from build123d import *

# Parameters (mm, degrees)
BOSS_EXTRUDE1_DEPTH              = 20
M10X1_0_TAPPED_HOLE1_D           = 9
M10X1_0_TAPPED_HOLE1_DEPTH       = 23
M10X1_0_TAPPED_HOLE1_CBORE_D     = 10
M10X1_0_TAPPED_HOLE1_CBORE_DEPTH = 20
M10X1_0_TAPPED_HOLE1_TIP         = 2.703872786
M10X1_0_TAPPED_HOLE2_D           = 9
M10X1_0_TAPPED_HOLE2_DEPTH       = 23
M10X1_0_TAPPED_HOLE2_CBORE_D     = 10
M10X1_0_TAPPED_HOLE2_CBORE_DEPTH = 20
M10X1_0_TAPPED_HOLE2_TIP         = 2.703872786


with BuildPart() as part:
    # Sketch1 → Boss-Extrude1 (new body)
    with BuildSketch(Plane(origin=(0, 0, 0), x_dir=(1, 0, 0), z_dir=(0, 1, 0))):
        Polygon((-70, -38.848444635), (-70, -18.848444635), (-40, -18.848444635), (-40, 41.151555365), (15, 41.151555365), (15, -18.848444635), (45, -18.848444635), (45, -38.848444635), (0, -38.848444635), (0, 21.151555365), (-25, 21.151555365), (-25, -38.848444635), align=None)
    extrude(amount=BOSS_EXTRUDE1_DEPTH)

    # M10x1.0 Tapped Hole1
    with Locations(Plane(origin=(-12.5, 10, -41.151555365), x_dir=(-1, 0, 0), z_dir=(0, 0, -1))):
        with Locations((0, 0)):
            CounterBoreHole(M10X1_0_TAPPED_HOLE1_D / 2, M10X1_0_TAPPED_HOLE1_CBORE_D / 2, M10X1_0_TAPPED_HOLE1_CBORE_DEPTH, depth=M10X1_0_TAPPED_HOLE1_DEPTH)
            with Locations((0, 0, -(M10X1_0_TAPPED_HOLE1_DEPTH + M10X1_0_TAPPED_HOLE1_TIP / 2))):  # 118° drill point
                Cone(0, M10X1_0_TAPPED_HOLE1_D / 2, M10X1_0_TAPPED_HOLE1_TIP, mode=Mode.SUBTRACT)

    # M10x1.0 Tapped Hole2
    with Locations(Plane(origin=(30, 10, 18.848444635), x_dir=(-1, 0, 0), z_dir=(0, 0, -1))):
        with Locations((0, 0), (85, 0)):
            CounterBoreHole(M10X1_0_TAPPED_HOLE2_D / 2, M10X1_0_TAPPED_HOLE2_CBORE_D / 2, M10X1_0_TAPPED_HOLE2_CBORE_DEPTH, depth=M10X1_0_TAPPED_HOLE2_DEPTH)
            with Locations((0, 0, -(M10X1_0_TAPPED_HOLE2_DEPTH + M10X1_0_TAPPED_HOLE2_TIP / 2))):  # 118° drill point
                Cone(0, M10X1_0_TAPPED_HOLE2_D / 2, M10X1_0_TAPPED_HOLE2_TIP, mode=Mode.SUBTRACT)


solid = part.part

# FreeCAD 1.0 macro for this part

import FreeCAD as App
import Part
import Sketcher
Q = App.Units.Quantity

doc = App.newDocument("Part")
params = doc.addObject("Spreadsheet::Sheet", "Params")
for row, (alias, value) in enumerate([
    ("sketch1_width", "45 mm"),
    ("sketch1_width2", "25 mm"),
    ("sketch1_width3", "30 mm"),
    ("sketch1_height", "20 mm"),
    ("sketch1_height2", "60 mm"),
    ("pad1_length", "20 mm"),
    ("sketch2_diameter", "9 mm"),
    ("hole_diameter", "9 mm"),
    ("hole_depth", "23 mm"),
    ("hole_cbore_diameter", "10 mm"),
    ("hole_cbore_depth", "20 mm"),
    ("sketch3_diameter", "9 mm"),
    ("hole2_diameter", "9 mm"),
    ("hole2_depth", "23 mm"),
    ("hole2_cbore_diameter", "10 mm"),
    ("hole2_cbore_depth", "20 mm"),
], start=1):
    params.set(f"A{row}", alias)
    params.set(f"B{row}", "=" + value)
    params.setAlias(f"B{row}", alias)

body = doc.addObject("PartDesign::Body", "Body")

# Sketch on XZ plane
sketch1 = body.newObject("Sketcher::SketchObject", "Sketch")
sketch1.AttachmentSupport = (doc.getObject("XZ_Plane"), [""])
sketch1.MapMode = "FlatFace"
sketch1.addGeometry([
    Part.LineSegment(App.Vector(-70, 18.848445, 0), App.Vector(-70, 38.848445, 0)),  # 0
    Part.LineSegment(App.Vector(-70, 38.848445, 0), App.Vector(-25, 38.848445, 0)),  # 1
    Part.LineSegment(App.Vector(-25, 38.848445, 0), App.Vector(-25, -21.151555, 0)),  # 2
    Part.LineSegment(App.Vector(-25, -21.151555, 0), App.Vector(0, -21.151555, 0)),  # 3
    Part.LineSegment(App.Vector(0, -21.151555, 0), App.Vector(0, 38.848445, 0)),  # 4
    Part.LineSegment(App.Vector(0, 38.848445, 0), App.Vector(45, 38.848445, 0)),  # 5
    Part.LineSegment(App.Vector(45, 38.848445, 0), App.Vector(45, 18.848445, 0)),  # 6
    Part.LineSegment(App.Vector(45, 18.848445, 0), App.Vector(15, 18.848445, 0)),  # 7
    Part.LineSegment(App.Vector(15, 18.848445, 0), App.Vector(15, -41.151555, 0)),  # 8
    Part.LineSegment(App.Vector(15, -41.151555, 0), App.Vector(-40, -41.151555, 0)),  # 9
    Part.LineSegment(App.Vector(-40, -41.151555, 0), App.Vector(-40, 18.848445, 0)),  # 10
    Part.LineSegment(App.Vector(-40, 18.848445, 0), App.Vector(-70, 18.848445, 0)),  # 11
], False)
sketch1.addConstraint([
    Sketcher.Constraint("Coincident", 0, 2, 1, 1),
    Sketcher.Constraint("Coincident", 1, 2, 2, 1),
    Sketcher.Constraint("Coincident", 2, 2, 3, 1),
    Sketcher.Constraint("Coincident", 3, 2, 4, 1),
    Sketcher.Constraint("Coincident", 4, 2, 5, 1),
    Sketcher.Constraint("Coincident", 5, 2, 6, 1),
    Sketcher.Constraint("Coincident", 6, 2, 7, 1),
    Sketcher.Constraint("Coincident", 7, 2, 8, 1),
    Sketcher.Constraint("Coincident", 8, 2, 9, 1),
    Sketcher.Constraint("Coincident", 9, 2, 10, 1),
    Sketcher.Constraint("Coincident", 10, 2, 11, 1),
    Sketcher.Constraint("Coincident", 11, 2, 0, 1),
    Sketcher.Constraint("Vertical", 0),
    Sketcher.Constraint("Horizontal", 1),
    Sketcher.Constraint("Vertical", 2),
    Sketcher.Constraint("Horizontal", 3),
    Sketcher.Constraint("Vertical", 4),
    Sketcher.Constraint("Horizontal", 5),
    Sketcher.Constraint("Vertical", 6),
    Sketcher.Constraint("Horizontal", 7),
    Sketcher.Constraint("Vertical", 8),
    Sketcher.Constraint("Horizontal", 9),
    Sketcher.Constraint("Vertical", 10),
    Sketcher.Constraint("Horizontal", 11),
    Sketcher.Constraint("PointOnObject", 3, 2, -2),
    Sketcher.Constraint("Horizontal", 1, 2, 4, 2),
    Sketcher.Constraint("Horizontal", 7, 2, 10, 2),
    Sketcher.Constraint("Equal", 1, 5),
    Sketcher.Constraint("Equal", 7, 11),
    Sketcher.Constraint("Equal", 4, 8),
    Sketcher.Constraint("DistanceX", 1, 1, 1, 2, Q("45 mm")),
    Sketcher.Constraint("DistanceX", 3, 1, 3, 2, Q("25 mm")),
    Sketcher.Constraint("DistanceX", 7, 2, 7, 1, Q("30 mm")),
    Sketcher.Constraint("DistanceY", 0, 1, 0, 2, Q("20 mm")),
    Sketcher.Constraint("DistanceY", 2, 2, 2, 1, Q("60 mm")),
    Sketcher.Constraint("DistanceY", -1, 1, 0, 2, Q("38.848445 mm")),
])
sketch1.setExpression("Constraints[30]", "Params.sketch1_width")
sketch1.setExpression("Constraints[31]", "Params.sketch1_width2")
sketch1.setExpression("Constraints[32]", "Params.sketch1_width3")
sketch1.setExpression("Constraints[33]", "Params.sketch1_height")
sketch1.setExpression("Constraints[34]", "Params.sketch1_height2")
pad1 = body.newObject("PartDesign::Pad", "Pad")
pad1.Profile = sketch1
pad1.setExpression("Length", "Params.pad1_length")
pad1.Reversed = True

# Sketch on XY plane
sketch2 = body.newObject("Sketcher::SketchObject", "Sketch001")
sketch2.AttachmentSupport = (doc.getObject("XY_Plane"), [""])
sketch2.MapMode = "FlatFace"
sketch2.AttachmentOffset = App.Placement(App.Vector(0, 0, -41.151555), App.Rotation())
sketch2.addGeometry(Part.Circle(App.Vector(-12.5, 10, 0), App.Vector(0, 0, 1), 4.5), False)
sketch2.addConstraint([
    Sketcher.Constraint("Diameter", 0, Q("9 mm")),
    Sketcher.Constraint("DistanceY", -1, 1, 0, 3, Q("10 mm")),
    Sketcher.Constraint("DistanceX", 0, 3, -1, 1, Q("12.5 mm")),
])
sketch2.setExpression("Constraints[0]", "Params.sketch2_diameter")
doc.recompute()
hole = body.newObject("PartDesign::Hole", "Hole")
hole.Profile = sketch2
hole.ThreadType = "None"
hole.setExpression("Diameter", "Params.hole_diameter")
hole.DepthType = "Dimension"
hole.setExpression("Depth", "Params.hole_depth")
hole.DrillPoint = "Angled"
hole.DrillPointAngle = 118
hole.HoleCutType = "Counterbore"
hole.setExpression("HoleCutDiameter", "Params.hole_cbore_diameter")
hole.setExpression("HoleCutDepth", "Params.hole_cbore_depth")
hole.Reversed = True

# Sketch on XY plane
sketch3 = body.newObject("Sketcher::SketchObject", "Sketch002")
sketch3.AttachmentSupport = (doc.getObject("XY_Plane"), [""])
sketch3.MapMode = "FlatFace"
sketch3.AttachmentOffset = App.Placement(App.Vector(0, 0, 18.848445), App.Rotation())
sketch3.addGeometry([
    Part.Circle(App.Vector(30, 10, 0), App.Vector(0, 0, 1), 4.5),
    Part.Circle(App.Vector(-55, 10, 0), App.Vector(0, 0, 1), 4.5),
], False)
sketch3.addConstraint([
    Sketcher.Constraint("Equal", 0, 1),
    Sketcher.Constraint("Horizontal", 0, 3, 1, 3),
    Sketcher.Constraint("Diameter", 0, Q("9 mm")),
    Sketcher.Constraint("DistanceX", -1, 1, 0, 3, Q("30 mm")),
    Sketcher.Constraint("DistanceY", -1, 1, 0, 3, Q("10 mm")),
    Sketcher.Constraint("DistanceX", 1, 3, -1, 1, Q("55 mm")),
])
sketch3.setExpression("Constraints[2]", "Params.sketch3_diameter")
doc.recompute()
hole2 = body.newObject("PartDesign::Hole", "Hole001")
hole2.Profile = sketch3
hole2.ThreadType = "None"
hole2.setExpression("Diameter", "Params.hole2_diameter")
hole2.DepthType = "Dimension"
hole2.setExpression("Depth", "Params.hole2_depth")
hole2.DrillPoint = "Angled"
hole2.DrillPointAngle = 118
hole2.HoleCutType = "Counterbore"
hole2.setExpression("HoleCutDiameter", "Params.hole2_cbore_diameter")
hole2.setExpression("HoleCutDepth", "Params.hole2_cbore_depth")
hole2.Reversed = True

doc.recompute()
